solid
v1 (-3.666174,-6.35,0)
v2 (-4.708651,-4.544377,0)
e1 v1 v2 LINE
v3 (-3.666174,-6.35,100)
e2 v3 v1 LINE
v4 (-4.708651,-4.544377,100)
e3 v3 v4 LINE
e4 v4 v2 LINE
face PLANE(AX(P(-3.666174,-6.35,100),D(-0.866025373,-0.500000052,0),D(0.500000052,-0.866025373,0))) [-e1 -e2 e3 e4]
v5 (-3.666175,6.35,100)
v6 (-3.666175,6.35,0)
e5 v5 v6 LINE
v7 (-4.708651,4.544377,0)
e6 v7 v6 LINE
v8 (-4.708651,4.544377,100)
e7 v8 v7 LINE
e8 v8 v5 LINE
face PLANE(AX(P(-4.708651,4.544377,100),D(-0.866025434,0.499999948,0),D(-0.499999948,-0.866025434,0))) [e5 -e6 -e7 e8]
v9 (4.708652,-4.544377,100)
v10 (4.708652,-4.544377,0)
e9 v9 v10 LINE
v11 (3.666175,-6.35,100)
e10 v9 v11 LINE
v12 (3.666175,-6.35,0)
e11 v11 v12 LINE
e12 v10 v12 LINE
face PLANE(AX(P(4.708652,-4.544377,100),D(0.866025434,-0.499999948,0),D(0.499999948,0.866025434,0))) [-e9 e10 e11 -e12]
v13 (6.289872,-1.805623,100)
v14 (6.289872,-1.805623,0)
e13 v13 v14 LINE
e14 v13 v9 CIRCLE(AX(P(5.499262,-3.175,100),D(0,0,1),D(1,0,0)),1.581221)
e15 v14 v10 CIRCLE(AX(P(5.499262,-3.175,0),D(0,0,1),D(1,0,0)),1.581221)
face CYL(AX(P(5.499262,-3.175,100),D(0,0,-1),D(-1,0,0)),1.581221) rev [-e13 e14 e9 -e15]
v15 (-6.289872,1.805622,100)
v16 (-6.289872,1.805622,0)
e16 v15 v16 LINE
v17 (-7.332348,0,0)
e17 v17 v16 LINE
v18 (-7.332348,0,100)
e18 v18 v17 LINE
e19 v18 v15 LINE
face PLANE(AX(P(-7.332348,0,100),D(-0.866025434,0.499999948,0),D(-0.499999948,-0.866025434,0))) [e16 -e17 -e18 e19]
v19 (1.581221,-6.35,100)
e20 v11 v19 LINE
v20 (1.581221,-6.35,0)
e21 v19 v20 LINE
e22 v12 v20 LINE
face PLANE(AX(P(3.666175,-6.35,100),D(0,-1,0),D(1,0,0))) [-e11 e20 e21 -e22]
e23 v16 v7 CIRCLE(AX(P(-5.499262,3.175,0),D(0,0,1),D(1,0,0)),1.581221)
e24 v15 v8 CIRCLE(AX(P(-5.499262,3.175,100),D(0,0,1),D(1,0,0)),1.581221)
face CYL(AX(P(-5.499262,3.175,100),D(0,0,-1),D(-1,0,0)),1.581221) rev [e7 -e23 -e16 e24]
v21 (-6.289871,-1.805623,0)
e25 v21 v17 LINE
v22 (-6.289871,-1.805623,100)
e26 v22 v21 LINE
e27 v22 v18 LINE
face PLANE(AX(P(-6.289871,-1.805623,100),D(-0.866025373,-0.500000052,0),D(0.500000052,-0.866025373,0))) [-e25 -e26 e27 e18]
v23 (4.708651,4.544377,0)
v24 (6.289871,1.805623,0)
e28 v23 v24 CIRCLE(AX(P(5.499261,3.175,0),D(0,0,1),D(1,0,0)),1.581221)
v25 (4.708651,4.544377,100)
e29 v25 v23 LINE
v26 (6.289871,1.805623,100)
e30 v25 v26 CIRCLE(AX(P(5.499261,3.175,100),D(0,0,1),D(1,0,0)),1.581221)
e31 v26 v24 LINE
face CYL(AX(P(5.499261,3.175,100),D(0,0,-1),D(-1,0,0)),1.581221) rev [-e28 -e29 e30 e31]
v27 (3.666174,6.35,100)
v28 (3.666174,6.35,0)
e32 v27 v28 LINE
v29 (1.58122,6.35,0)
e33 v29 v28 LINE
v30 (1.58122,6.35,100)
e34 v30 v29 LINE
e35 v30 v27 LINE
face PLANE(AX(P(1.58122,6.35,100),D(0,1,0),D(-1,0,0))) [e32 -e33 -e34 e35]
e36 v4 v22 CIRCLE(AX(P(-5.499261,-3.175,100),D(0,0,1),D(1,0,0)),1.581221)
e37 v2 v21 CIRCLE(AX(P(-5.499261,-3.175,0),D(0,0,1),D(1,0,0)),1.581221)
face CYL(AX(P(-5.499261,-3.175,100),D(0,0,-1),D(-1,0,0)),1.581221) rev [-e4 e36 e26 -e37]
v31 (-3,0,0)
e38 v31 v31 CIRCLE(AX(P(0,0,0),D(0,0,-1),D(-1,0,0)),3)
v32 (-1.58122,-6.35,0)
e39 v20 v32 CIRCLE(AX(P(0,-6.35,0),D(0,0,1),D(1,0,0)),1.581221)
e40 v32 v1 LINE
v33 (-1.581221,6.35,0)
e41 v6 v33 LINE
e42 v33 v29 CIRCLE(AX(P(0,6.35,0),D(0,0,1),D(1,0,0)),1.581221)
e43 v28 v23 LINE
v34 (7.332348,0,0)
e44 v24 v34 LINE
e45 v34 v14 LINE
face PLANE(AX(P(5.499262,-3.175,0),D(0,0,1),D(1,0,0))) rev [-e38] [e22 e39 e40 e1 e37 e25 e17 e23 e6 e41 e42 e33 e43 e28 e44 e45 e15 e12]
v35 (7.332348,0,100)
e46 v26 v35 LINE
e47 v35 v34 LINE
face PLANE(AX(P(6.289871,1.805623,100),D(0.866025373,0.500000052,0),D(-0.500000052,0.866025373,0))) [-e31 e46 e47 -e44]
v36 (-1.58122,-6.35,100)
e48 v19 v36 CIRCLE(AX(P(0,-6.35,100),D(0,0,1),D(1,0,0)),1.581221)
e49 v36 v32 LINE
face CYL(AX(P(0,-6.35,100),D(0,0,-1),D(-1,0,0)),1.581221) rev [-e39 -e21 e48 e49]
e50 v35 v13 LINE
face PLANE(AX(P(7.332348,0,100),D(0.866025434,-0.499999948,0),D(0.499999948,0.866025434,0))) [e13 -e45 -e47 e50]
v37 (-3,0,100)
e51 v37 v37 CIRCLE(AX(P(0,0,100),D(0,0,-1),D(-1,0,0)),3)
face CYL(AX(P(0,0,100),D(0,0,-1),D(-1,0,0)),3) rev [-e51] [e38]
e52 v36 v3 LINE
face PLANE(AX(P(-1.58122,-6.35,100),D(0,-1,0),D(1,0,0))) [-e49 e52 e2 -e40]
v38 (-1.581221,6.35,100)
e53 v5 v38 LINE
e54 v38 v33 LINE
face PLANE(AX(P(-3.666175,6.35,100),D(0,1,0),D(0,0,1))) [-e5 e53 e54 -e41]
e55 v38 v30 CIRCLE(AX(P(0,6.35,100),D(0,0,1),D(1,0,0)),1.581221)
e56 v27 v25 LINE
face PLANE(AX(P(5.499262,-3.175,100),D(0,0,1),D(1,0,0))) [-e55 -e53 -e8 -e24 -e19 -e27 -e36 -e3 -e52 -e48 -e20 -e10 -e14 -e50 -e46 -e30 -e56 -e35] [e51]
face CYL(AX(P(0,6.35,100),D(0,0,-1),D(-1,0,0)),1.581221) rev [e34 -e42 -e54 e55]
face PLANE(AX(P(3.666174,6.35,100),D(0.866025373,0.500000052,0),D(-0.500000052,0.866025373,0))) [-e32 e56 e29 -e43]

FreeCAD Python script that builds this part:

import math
import FreeCAD as App
import Part
import Sketcher
Q = App.Units.Quantity

doc = App.newDocument("Part")
body = doc.addObject("PartDesign::Body", "Body")

# Sketch on XY plane
sketch1 = body.newObject("Sketcher::SketchObject", "Sketch")
sketch1.AttachmentSupport = (doc.getObject("XY_Plane"), [""])
sketch1.MapMode = "FlatFace"
sketch1.addGeometry([
    Part.LineSegment(App.Vector(-1.581221, 6.35, 0), App.Vector(-3.666175, 6.35, 0)),  # 0
    Part.LineSegment(App.Vector(-3.666175, 6.35, 0), App.Vector(-4.708651, 4.544377, 0)),  # 1
    Part.ArcOfCircle(Part.Circle(App.Vector(-5.499262, 3.175, 0), App.Vector(0, 0, 1), 1.581221), math.radians(-119.999997), math.radians(60.000003)),  # 2
    Part.LineSegment(App.Vector(-6.289872, 1.805622, 0), App.Vector(-7.332348, 0, 0)),  # 3
    Part.LineSegment(App.Vector(-7.332348, 0, 0), App.Vector(-6.289871, -1.805623, 0)),  # 4
    Part.ArcOfCircle(Part.Circle(App.Vector(-5.499261, -3.175, 0), App.Vector(0, 0, 1), 1.581221), math.radians(-59.999997), math.radians(120.000003)),  # 5
    Part.LineSegment(App.Vector(-4.708651, -4.544377, 0), App.Vector(-3.666174, -6.35, 0)),  # 6
    Part.LineSegment(App.Vector(-3.666174, -6.35, 0), App.Vector(-1.58122, -6.35, 0)),  # 7
    Part.ArcOfCircle(Part.Circle(App.Vector(0, -6.35, 0), App.Vector(0, 0, 1), 1.581221), math.radians(-0.000008), math.radians(180.000008)),  # 8
    Part.LineSegment(App.Vector(1.581221, -6.35, 0), App.Vector(3.666175, -6.35, 0)),  # 9
    Part.LineSegment(App.Vector(3.666175, -6.35, 0), App.Vector(4.708652, -4.544377, 0)),  # 10
    Part.ArcOfCircle(Part.Circle(App.Vector(5.499262, -3.175, 0), App.Vector(0, 0, 1), 1.581221), math.radians(59.999995), math.radians(240.000012)),  # 11
    Part.LineSegment(App.Vector(6.289872, -1.805623, 0), App.Vector(7.332348, 0, 0)),  # 12
    Part.LineSegment(App.Vector(7.332348, 0, 0), App.Vector(6.289871, 1.805623, 0)),  # 13
    Part.ArcOfCircle(Part.Circle(App.Vector(5.499261, 3.175, 0), App.Vector(0, 0, 1), 1.581221), math.radians(120.000012), math.radians(299.999995)),  # 14
    Part.LineSegment(App.Vector(4.708651, 4.544377, 0), App.Vector(3.666174, 6.35, 0)),  # 15
    Part.LineSegment(App.Vector(3.666174, 6.35, 0), App.Vector(1.58122, 6.35, 0)),  # 16
    Part.ArcOfCircle(Part.Circle(App.Vector(0, 6.35, 0), App.Vector(0, 0, 1), 1.581221), math.radians(-179.999992), math.radians(-0.000008)),  # 17
], False)
sketch1.addConstraint([
    Sketcher.Constraint("Coincident", 0, 2, 1, 1),
    Sketcher.Constraint("Coincident", 1, 2, 2, 2),
    Sketcher.Constraint("Coincident", 2, 1, 3, 1),
    Sketcher.Constraint("Coincident", 3, 2, 4, 1),
    Sketcher.Constraint("Coincident", 4, 2, 5, 2),
    Sketcher.Constraint("Coincident", 5, 1, 6, 1),
    Sketcher.Constraint("Coincident", 6, 2, 7, 1),
    Sketcher.Constraint("Coincident", 7, 2, 8, 2),
    Sketcher.Constraint("Coincident", 8, 1, 9, 1),
    Sketcher.Constraint("Coincident", 9, 2, 10, 1),
    Sketcher.Constraint("Coincident", 10, 2, 11, 2),
    Sketcher.Constraint("Coincident", 11, 1, 12, 1),
    Sketcher.Constraint("Coincident", 12, 2, 13, 1),
    Sketcher.Constraint("Coincident", 13, 2, 14, 2),
    Sketcher.Constraint("Coincident", 14, 1, 15, 1),
    Sketcher.Constraint("Coincident", 15, 2, 16, 1),
    Sketcher.Constraint("Coincident", 16, 2, 17, 2),
    Sketcher.Constraint("Coincident", 17, 1, 0, 1),
    Sketcher.Constraint("Horizontal", 0),
    Sketcher.Constraint("Horizontal", 7),
    Sketcher.Constraint("Horizontal", 9),
    Sketcher.Constraint("Horizontal", 16),
    Sketcher.Constraint("Equal", 2, 5),
    Sketcher.Constraint("Equal", 5, 8),
    Sketcher.Constraint("Equal", 8, 11),
    Sketcher.Constraint("Equal", 11, 14),
    Sketcher.Constraint("Equal", 14, 17),
    Sketcher.Constraint("Symmetric", 2, 3, 11, 3, -1, 1),
    Sketcher.Constraint("Symmetric", 5, 3, 14, 3, -1, 1),
    Sketcher.Constraint("Symmetric", 8, 3, 17, 3, -1, 1),
    Sketcher.Constraint("Symmetric", 0, 2, 9, 2, -1, 1),
    Sketcher.Constraint("Symmetric", 3, 2, 12, 2, -1, 1),
    Sketcher.Constraint("Symmetric", 6, 2, 15, 2, -1, 1),
    Sketcher.Constraint("Symmetric", 5, 3, 11, 3, -2),
    Sketcher.Constraint("Symmetric", 7, 2, 8, 1, -2),
    Sketcher.Constraint("PointOnObject", 3, 2, -1),
    Sketcher.Constraint("Parallel", 1, 3),
    Sketcher.Constraint("Parallel", 4, 6),
    Sketcher.Constraint("Parallel", 3, 10),
    Sketcher.Constraint("Parallel", 10, 12),
    Sketcher.Constraint("Parallel", 6, 13),
    Sketcher.Constraint("Parallel", 13, 15),
    Sketcher.Constraint("Horizontal", 17, 3, 0, 2),
    Sketcher.Constraint("Horizontal", 5, 1, 10, 2),
    Sketcher.Constraint("Horizontal", 4, 2, 11, 1),
    Sketcher.Constraint("Equal", 1, 3),
    Sketcher.Constraint("Angle", 1, Q("-119.999997 deg")),
    Sketcher.Constraint("DistanceY", 8, 3, 17, 3, 12.7),
    Sketcher.Constraint("Radius", 2, 1.581221),
    Sketcher.Constraint("DistanceY", 5, 3, 2, 3, 6.35),
    Sketcher.Constraint("DistanceX", 0, 2, 0, 1, 2.084954),
    Sketcher.Constraint("DistanceX", 2, 3, -1, 1, 5.499262),
])
pad1 = body.newObject("PartDesign::Pad", "Pad")
pad1.Profile = sketch1
pad1.Length = 100

# Sketch on XY plane
sketch2 = body.newObject("Sketcher::SketchObject", "Sketch001")
sketch2.AttachmentSupport = (doc.getObject("XY_Plane"), [""])
sketch2.MapMode = "FlatFace"
sketch2.addGeometry(Part.Circle(App.Vector(0, 0, 0), App.Vector(0, 0, 1), 3), False)
sketch2.addConstraint([
    Sketcher.Constraint("Coincident", 0, 3, -1, 1),
    Sketcher.Constraint("Diameter", 0, 6.0),
])
pocket1 = body.newObject("PartDesign::Pocket", "Pocket")
pocket1.Profile = sketch2
pocket1.Type = "ThroughAll"
pocket1.Midplane = True

doc.recompute()
